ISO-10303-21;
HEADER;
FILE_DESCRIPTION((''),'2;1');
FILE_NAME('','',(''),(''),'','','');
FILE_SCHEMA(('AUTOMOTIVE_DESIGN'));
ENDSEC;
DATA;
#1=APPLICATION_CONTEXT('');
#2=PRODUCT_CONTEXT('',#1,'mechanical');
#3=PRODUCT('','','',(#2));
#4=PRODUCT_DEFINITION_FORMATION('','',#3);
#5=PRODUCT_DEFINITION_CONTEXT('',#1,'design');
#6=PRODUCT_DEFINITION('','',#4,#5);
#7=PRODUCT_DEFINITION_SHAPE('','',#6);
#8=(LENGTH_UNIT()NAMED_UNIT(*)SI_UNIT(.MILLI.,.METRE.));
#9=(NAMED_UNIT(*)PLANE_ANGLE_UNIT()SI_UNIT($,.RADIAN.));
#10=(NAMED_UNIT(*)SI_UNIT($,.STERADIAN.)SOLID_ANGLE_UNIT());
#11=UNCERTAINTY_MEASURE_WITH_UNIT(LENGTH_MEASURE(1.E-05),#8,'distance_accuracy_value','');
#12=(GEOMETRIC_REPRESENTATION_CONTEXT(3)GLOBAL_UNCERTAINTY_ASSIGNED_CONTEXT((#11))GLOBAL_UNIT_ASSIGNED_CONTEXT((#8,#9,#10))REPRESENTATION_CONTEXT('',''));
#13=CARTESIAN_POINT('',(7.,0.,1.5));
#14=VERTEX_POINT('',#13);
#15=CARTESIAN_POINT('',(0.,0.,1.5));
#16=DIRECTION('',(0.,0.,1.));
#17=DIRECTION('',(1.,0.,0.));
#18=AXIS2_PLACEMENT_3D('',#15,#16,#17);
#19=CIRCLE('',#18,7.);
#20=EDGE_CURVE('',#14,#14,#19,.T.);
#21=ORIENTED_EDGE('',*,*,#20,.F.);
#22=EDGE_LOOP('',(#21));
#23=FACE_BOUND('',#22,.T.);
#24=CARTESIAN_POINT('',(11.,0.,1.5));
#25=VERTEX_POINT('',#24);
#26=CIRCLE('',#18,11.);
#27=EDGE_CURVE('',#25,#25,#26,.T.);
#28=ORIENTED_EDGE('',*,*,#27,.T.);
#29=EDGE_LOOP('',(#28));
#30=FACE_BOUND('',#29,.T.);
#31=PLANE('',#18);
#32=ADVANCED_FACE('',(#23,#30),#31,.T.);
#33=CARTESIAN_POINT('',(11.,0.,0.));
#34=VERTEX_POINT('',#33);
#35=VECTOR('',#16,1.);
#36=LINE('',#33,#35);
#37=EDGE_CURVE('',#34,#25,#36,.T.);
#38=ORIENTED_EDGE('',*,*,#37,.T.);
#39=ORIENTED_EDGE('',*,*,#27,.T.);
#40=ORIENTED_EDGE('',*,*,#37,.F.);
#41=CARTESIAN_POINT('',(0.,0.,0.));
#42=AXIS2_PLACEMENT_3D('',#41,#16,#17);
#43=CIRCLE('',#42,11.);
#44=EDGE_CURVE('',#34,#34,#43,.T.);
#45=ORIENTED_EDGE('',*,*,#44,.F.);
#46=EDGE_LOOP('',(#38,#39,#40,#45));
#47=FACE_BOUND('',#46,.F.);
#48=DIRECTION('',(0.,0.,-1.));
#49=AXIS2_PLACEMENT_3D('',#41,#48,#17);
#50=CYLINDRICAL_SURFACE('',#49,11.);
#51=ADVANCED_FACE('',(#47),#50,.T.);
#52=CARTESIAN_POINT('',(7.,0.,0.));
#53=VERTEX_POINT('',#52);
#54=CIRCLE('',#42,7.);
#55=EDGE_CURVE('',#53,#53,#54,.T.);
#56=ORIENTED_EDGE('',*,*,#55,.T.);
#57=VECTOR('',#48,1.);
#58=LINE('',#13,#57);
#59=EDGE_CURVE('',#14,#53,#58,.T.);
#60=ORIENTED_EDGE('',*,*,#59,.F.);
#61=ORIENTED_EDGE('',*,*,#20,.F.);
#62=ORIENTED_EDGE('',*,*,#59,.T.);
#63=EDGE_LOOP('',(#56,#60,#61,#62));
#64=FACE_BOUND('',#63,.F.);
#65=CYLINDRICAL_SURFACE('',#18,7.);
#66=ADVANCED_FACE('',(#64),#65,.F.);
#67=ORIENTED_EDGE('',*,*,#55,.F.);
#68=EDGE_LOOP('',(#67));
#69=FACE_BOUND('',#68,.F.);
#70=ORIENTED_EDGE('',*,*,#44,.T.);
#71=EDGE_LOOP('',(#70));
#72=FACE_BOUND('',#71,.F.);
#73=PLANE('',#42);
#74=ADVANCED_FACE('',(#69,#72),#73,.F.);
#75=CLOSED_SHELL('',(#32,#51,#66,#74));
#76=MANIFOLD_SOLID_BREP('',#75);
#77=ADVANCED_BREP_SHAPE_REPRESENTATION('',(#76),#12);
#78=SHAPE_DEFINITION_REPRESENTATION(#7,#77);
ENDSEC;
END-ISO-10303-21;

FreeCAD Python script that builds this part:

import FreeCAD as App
import Part
import Sketcher
from FreeCAD import Vector

doc = App.newDocument("Part")
params = doc.addObject("Spreadsheet::Sheet", "Params")
for row, (alias, value) in enumerate([
    ("sketch1_diameter", "22 mm"),
    ("sketch1_diameter2", "9 mm"),
    ("pad1_length", "1.5 mm"),
    ("sketch2_diameter", "14 mm"),
    ("pocket1_length", "1.5 mm"),
], start=1):
    params.set(f"A{row}", alias)
    params.set(f"B{row}", "=" + value)
    params.setAlias(f"B{row}", alias)

body = doc.addObject("PartDesign::Body", "Body")

# Sketch on XY plane
sketch1 = body.newObject("Sketcher::SketchObject", "Sketch")
sketch1.AttachmentSupport = (doc.getObject("XY_Plane"), [""])
sketch1.MapMode = "FlatFace"
sketch1.addGeometry(Part.Circle(Vector(0, 0, 0), Vector(0, 0, 1), 11), False)
sketch1.addGeometry(Part.Circle(Vector(0, 0, 0), Vector(0, 0, 1), 4.5), False)
sketch1.addConstraint(Sketcher.Constraint("Coincident", 0, 3, -1, 1))
sketch1.addConstraint(Sketcher.Constraint("Coincident", 1, 3, -1, 1))
sketch1.addConstraint(Sketcher.Constraint("Diameter", 0, 22.0))
sketch1.addConstraint(Sketcher.Constraint("Diameter", 1, 9.0))
sketch1.setExpression("Constraints[2]", "Params.sketch1_diameter")
sketch1.setExpression("Constraints[3]", "Params.sketch1_diameter2")
pad1 = body.newObject("PartDesign::Pad", "Pad")
pad1.Profile = sketch1
pad1.setExpression("Length", "Params.pad1_length")

# Sketch on XY plane
sketch2 = body.newObject("Sketcher::SketchObject", "Sketch001")
sketch2.AttachmentSupport = (doc.getObject("XY_Plane"), [""])
sketch2.MapMode = "FlatFace"
sketch2.AttachmentOffset = App.Placement(Vector(0, 0, 1.5), App.Rotation())
sketch2.addGeometry(Part.Circle(Vector(0, 0, 0), Vector(0, 0, 1), 7), False)
sketch2.addConstraint(Sketcher.Constraint("Coincident", 0, 3, -1, 1))
sketch2.addConstraint(Sketcher.Constraint("Diameter", 0, 14.0))
sketch2.setExpression("Constraints[1]", "Params.sketch2_diameter")
pocket1 = body.newObject("PartDesign::Pocket", "Pocket")
pocket1.Profile = sketch2
pocket1.setExpression("Length", "Params.pocket1_length")

doc.recompute()
